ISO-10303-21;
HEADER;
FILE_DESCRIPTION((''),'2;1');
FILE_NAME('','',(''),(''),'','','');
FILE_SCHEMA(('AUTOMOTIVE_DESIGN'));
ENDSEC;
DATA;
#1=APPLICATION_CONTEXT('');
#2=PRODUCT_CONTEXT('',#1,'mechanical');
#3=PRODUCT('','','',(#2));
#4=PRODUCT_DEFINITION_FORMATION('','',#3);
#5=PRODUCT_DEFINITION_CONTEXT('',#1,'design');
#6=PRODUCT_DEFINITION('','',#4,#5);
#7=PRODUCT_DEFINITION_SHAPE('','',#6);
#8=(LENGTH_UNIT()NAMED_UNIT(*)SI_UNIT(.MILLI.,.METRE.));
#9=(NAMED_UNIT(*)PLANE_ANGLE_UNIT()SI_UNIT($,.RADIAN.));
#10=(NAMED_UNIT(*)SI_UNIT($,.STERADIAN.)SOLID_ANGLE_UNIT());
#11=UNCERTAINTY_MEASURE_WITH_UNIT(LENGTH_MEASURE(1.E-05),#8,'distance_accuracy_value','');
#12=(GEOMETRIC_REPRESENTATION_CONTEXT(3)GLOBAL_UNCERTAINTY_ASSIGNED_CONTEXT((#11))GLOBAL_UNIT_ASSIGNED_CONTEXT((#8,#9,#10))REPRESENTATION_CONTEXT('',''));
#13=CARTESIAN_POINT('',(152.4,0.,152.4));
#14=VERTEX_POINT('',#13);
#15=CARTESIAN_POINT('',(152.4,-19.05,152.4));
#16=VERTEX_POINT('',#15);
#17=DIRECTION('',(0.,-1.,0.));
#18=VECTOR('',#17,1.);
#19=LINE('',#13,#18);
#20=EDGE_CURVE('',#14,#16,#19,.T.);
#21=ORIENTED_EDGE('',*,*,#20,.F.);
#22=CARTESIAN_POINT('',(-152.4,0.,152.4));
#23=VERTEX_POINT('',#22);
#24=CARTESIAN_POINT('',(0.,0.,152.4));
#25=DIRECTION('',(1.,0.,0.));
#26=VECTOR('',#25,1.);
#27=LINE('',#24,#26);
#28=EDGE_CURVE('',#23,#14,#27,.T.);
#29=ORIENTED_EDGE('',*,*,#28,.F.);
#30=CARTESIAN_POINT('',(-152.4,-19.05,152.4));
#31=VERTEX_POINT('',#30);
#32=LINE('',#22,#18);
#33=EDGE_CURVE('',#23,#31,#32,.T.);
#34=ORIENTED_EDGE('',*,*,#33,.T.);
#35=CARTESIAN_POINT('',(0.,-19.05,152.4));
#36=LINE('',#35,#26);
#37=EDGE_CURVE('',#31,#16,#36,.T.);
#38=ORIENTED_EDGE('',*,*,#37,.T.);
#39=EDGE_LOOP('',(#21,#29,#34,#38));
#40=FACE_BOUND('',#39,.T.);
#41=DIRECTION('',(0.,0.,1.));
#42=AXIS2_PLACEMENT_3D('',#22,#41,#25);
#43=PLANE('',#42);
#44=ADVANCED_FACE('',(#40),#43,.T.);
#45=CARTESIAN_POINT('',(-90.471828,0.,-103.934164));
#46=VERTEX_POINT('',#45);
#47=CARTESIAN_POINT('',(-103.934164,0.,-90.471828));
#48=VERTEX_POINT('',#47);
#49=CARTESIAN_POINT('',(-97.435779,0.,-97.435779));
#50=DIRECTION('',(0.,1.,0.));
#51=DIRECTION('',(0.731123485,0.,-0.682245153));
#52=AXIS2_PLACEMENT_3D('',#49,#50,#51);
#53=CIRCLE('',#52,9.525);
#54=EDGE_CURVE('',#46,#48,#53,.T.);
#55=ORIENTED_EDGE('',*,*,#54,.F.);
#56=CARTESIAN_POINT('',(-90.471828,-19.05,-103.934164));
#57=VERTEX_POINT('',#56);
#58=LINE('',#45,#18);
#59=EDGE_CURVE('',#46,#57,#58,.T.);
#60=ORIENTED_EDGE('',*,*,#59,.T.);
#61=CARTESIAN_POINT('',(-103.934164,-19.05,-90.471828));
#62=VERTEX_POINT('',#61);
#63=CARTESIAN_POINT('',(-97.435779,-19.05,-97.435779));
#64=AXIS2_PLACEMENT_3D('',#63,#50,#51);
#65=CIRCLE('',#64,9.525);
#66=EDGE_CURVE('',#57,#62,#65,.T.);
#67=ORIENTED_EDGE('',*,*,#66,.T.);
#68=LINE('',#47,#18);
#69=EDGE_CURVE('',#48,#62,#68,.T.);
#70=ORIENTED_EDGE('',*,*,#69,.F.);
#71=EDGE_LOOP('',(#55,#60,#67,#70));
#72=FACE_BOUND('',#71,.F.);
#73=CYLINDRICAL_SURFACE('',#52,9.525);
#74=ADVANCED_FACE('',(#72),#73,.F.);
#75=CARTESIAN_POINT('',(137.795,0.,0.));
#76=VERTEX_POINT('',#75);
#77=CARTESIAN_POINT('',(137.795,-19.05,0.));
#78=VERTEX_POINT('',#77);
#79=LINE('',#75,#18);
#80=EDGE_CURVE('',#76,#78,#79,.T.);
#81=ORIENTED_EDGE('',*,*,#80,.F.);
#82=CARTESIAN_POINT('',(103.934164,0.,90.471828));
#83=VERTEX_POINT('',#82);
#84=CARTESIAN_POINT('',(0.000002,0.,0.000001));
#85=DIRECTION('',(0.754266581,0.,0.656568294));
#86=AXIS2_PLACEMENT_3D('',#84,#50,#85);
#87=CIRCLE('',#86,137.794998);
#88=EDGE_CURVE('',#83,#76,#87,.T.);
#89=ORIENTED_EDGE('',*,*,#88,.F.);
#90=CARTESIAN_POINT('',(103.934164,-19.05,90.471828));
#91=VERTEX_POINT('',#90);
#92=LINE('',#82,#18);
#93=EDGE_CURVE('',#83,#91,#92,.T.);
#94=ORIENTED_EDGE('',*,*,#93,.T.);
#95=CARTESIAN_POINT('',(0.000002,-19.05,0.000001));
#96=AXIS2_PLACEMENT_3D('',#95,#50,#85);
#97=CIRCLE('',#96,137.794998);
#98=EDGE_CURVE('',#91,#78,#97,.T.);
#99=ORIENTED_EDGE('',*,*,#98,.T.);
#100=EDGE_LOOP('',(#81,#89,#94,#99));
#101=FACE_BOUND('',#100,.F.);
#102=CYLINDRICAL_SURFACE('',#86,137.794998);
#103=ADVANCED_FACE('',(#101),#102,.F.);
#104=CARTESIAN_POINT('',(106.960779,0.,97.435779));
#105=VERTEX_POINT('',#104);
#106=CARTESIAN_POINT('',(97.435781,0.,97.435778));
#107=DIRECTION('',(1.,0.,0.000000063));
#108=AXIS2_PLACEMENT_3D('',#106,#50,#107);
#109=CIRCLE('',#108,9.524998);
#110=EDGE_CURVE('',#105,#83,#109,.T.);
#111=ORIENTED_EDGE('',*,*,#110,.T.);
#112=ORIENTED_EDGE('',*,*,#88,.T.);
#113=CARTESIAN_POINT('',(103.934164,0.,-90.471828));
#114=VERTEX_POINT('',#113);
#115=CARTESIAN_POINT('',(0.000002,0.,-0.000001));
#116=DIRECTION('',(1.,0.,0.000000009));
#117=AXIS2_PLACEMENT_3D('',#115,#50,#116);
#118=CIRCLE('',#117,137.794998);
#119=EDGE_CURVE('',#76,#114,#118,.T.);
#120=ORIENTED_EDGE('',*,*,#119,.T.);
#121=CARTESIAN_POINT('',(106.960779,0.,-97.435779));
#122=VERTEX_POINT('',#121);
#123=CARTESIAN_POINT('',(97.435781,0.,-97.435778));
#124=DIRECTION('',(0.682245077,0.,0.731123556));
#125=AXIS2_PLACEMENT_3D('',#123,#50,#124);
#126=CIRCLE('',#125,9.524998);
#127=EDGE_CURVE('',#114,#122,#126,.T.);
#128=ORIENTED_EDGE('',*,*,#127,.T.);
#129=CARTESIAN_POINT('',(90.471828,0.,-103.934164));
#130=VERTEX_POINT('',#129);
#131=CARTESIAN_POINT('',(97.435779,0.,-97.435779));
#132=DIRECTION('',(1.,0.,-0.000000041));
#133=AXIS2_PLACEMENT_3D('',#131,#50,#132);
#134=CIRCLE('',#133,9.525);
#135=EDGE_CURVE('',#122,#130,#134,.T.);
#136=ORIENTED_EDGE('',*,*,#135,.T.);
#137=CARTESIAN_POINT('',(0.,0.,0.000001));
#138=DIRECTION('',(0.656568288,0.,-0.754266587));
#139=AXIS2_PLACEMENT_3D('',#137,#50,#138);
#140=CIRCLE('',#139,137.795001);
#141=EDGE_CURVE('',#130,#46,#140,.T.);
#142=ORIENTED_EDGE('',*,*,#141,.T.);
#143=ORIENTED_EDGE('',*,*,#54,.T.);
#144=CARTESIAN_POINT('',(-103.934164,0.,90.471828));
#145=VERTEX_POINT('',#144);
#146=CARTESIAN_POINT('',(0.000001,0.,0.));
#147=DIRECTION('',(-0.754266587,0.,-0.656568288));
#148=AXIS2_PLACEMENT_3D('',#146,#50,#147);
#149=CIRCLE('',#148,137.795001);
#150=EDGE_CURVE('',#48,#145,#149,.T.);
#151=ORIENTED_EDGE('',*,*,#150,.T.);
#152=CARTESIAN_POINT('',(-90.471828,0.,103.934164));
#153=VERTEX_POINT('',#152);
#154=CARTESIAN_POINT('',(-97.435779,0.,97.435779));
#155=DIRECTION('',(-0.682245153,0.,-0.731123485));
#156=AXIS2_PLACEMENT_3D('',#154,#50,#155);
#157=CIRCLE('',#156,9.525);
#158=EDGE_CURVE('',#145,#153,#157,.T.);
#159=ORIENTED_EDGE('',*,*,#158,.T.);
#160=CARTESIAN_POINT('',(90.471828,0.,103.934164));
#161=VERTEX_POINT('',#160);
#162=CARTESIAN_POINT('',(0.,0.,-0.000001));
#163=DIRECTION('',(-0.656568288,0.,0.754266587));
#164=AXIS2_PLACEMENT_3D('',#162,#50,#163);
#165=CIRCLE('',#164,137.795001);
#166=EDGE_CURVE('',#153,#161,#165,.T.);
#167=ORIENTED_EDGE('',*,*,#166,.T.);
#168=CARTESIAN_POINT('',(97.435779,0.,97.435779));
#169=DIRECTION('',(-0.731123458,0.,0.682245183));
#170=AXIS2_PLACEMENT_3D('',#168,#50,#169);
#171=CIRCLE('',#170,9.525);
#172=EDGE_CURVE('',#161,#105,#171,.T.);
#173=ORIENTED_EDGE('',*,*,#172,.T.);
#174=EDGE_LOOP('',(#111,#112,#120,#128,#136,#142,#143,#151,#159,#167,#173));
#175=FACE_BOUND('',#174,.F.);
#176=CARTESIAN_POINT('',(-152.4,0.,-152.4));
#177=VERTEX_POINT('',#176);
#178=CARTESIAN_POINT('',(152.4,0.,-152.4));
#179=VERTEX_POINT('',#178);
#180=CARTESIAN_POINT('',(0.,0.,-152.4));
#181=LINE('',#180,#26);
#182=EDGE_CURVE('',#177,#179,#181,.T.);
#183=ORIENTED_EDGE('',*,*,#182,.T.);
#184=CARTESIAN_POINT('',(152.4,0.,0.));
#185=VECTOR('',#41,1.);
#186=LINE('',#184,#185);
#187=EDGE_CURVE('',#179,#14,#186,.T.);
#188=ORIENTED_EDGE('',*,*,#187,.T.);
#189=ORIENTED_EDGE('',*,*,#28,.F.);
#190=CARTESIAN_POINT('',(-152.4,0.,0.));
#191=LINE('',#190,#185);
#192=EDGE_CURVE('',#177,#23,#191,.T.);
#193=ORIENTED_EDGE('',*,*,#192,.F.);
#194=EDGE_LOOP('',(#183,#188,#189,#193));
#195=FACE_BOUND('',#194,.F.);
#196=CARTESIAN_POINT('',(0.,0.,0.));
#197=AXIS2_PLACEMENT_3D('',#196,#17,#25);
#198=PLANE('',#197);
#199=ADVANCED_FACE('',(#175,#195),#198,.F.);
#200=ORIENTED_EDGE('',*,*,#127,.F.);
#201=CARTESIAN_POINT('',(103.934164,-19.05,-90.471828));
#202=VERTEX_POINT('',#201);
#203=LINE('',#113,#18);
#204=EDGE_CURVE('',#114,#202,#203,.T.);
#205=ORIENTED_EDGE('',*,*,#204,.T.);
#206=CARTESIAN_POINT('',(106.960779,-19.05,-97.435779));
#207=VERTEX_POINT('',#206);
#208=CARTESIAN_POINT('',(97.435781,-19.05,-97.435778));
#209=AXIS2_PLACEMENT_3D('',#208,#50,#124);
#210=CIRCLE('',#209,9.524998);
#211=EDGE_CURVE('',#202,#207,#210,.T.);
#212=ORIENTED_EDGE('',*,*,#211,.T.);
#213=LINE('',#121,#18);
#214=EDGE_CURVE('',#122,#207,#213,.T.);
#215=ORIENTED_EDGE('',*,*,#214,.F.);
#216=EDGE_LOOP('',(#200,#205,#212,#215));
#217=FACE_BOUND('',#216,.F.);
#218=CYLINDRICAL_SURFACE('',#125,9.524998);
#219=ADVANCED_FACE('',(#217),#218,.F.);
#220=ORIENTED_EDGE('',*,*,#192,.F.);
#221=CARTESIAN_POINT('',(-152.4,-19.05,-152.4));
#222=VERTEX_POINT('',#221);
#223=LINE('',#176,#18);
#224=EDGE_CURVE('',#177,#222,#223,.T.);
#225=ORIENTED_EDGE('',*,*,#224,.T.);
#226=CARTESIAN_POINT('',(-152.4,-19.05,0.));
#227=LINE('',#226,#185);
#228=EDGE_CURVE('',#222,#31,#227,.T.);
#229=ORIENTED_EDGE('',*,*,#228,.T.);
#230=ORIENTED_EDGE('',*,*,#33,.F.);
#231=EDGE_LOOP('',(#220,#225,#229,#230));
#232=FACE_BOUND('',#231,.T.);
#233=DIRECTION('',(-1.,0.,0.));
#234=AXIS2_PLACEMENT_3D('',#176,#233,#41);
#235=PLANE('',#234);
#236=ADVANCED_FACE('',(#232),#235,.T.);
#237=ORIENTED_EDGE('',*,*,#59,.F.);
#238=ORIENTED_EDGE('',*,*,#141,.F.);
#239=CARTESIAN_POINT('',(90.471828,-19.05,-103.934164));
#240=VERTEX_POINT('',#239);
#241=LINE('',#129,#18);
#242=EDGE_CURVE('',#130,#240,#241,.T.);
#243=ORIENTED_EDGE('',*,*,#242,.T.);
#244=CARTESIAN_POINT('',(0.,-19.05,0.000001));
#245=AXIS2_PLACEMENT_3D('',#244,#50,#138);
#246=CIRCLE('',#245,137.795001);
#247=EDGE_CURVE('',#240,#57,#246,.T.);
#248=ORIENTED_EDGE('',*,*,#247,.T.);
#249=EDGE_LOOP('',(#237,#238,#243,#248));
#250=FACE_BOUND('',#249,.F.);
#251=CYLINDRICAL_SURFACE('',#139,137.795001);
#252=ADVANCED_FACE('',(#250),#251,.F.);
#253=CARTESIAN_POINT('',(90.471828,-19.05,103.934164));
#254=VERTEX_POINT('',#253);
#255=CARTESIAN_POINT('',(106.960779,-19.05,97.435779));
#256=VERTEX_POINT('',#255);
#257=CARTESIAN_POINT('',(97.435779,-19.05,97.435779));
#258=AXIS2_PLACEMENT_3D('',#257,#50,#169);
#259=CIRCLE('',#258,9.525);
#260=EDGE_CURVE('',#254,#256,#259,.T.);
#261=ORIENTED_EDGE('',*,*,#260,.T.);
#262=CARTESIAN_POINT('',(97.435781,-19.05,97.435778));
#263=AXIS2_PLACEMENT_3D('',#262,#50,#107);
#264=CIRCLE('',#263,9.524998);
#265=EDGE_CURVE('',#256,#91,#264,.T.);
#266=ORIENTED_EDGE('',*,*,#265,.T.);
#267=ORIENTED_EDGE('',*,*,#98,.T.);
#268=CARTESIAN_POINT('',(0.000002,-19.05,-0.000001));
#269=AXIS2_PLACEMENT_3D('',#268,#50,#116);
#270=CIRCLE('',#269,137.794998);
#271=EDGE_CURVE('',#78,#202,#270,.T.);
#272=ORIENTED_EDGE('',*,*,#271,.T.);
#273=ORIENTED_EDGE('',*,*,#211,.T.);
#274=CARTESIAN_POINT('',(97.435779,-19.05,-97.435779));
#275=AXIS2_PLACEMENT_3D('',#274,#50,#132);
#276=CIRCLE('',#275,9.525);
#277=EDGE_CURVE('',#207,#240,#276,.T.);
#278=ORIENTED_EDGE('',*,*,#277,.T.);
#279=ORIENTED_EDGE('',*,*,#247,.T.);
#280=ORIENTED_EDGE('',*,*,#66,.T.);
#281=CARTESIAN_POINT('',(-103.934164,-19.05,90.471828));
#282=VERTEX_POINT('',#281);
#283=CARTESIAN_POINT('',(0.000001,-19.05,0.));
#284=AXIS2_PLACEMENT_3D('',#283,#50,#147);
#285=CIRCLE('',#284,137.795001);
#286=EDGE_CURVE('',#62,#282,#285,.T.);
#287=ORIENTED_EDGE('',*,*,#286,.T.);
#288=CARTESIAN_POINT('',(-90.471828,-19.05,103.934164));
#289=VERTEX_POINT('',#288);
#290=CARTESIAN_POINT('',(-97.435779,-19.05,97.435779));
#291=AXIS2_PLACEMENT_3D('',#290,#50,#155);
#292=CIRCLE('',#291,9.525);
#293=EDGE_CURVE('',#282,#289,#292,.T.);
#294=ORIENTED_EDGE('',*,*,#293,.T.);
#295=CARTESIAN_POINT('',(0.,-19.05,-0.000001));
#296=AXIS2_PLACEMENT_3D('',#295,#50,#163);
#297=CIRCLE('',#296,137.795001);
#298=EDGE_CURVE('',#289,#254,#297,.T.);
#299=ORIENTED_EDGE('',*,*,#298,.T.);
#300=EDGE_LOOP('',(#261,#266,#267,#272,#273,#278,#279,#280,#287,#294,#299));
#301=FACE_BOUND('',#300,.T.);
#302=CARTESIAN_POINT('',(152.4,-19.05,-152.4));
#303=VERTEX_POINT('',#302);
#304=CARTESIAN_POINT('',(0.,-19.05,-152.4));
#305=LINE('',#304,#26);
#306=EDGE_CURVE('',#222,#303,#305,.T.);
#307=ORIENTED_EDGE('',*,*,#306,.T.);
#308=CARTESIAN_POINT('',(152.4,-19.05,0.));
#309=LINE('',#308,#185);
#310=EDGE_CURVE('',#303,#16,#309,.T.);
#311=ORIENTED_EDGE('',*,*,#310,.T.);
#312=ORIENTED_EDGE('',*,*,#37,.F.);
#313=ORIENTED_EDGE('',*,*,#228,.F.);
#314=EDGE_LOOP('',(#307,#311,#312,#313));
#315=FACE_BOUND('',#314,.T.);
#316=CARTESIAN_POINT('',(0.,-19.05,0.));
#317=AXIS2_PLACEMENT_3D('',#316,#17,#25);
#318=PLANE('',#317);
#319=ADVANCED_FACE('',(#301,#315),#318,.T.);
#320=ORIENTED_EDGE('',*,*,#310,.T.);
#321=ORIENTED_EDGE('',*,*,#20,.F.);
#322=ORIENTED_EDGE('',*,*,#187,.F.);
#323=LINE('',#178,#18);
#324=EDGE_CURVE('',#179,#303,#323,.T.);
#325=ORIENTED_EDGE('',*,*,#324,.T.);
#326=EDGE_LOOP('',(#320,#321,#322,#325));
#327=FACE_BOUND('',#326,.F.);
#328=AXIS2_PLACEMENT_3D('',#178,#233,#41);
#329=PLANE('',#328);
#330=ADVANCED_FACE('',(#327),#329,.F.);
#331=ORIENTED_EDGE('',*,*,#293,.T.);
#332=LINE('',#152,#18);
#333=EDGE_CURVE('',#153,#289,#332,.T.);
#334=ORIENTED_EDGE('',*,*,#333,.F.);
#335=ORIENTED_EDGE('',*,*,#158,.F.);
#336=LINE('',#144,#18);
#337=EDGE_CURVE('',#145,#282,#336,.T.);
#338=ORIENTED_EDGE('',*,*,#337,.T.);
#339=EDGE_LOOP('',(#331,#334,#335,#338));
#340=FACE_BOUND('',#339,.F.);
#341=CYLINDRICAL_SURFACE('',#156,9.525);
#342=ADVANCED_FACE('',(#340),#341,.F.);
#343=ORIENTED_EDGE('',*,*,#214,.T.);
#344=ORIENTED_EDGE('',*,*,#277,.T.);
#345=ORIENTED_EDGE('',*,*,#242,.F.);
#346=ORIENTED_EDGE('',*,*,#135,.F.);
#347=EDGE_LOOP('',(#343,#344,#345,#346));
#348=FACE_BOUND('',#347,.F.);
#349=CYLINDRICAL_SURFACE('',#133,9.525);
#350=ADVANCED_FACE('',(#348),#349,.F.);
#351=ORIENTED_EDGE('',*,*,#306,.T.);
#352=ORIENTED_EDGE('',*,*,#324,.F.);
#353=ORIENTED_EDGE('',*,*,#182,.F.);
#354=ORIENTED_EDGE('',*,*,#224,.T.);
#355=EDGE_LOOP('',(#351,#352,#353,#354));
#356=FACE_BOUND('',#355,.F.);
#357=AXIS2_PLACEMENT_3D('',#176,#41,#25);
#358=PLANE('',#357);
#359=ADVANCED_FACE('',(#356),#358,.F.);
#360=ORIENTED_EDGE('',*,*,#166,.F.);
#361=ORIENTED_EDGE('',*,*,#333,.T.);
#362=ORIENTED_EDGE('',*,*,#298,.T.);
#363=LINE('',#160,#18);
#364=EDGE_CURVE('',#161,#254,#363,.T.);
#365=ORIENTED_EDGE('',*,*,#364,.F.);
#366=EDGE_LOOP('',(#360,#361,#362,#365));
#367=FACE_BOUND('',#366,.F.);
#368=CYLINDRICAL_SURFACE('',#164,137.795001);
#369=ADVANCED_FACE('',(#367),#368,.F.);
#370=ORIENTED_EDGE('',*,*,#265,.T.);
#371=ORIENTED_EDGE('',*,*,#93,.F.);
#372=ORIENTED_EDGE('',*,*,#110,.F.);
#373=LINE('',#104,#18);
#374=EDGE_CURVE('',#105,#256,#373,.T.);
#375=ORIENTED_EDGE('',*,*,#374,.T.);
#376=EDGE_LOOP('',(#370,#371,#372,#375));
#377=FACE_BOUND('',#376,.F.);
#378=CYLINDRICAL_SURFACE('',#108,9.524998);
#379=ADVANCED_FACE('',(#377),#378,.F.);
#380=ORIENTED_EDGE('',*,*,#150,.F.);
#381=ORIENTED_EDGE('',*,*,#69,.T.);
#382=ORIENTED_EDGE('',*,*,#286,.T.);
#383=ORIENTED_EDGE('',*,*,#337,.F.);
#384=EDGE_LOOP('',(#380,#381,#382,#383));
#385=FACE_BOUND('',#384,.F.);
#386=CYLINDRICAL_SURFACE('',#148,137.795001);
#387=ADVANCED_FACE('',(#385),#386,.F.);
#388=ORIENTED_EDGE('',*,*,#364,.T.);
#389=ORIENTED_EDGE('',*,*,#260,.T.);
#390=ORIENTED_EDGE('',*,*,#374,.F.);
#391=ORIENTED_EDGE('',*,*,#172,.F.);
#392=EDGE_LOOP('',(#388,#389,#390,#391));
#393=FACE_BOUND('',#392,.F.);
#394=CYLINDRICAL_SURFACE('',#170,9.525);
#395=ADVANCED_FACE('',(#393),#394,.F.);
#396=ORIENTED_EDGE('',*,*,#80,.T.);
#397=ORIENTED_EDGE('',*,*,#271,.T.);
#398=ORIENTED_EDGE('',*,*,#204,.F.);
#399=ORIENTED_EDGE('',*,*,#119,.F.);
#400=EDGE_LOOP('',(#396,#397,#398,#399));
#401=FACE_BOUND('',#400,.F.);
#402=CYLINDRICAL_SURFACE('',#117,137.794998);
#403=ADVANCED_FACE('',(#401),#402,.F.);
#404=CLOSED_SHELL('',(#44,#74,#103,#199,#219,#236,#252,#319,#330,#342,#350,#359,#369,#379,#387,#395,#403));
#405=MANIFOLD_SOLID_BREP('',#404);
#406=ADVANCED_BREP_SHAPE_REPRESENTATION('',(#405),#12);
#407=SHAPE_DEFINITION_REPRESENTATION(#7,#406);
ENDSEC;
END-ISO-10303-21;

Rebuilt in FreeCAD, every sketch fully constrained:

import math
import FreeCAD as App
import Part
import Sketcher

V = App.Vector
Q = App.Units.Quantity


def add_polygon(sketch, points):
    """Adds a closed chain of lines whose ends are joined by coincident constraints."""
    first, n = sketch.GeometryCount, len(points)
    for a, b in zip(points, points[1:] + points[:1]):
        sketch.addGeometry(Part.LineSegment(App.Vector(*a, 0), App.Vector(*b, 0)), False)
    for i in range(n):
        sketch.addConstraint(Sketcher.Constraint("Coincident", first + i, 2, first + (i + 1) % n, 1))

doc = App.newDocument("Part")
body = doc.addObject("PartDesign::Body", "Body")

# Sketch on XZ plane
sketch1 = body.newObject("Sketcher::SketchObject", "Sketch")
sketch1.AttachmentSupport = (doc.getObject("XZ_Plane"), [""])
sketch1.MapMode = "FlatFace"
add_polygon(sketch1, [(-152, 152), (-152, -152), (152, -152), (152, 152)])  # lines 0-3
sketch1.addGeometry(Part.ArcOfCircle(Part.Circle(V(97, 97, 0), V(0, 0, 1), 10), math.radians(-47), math.radians(0)), False)  # 4
sketch1.addGeometry(Part.ArcOfCircle(Part.Circle(V(0, 0, 0), V(0, 0, 1), 138), math.radians(0), math.radians(41)), False)  # 5
sketch1.addGeometry(Part.ArcOfCircle(Part.Circle(V(0, 0, 0), V(0, 0, 1), 138), math.radians(-41), math.radians(0)), False)  # 6
sketch1.addGeometry(Part.ArcOfCircle(Part.Circle(V(97, -97, 0), V(0, 0, 1), 10), math.radians(0), math.radians(47)), False)  # 7
sketch1.addGeometry(Part.ArcOfCircle(Part.Circle(V(97, -97, 0), V(0, 0, 1), 10), math.radians(-137), math.radians(0)), False)  # 8
sketch1.addGeometry(Part.ArcOfCircle(Part.Circle(V(0, 0, 0), V(0, 0, 1), 138), math.radians(-131), math.radians(-49)), False)  # 9
sketch1.addGeometry(Part.ArcOfCircle(Part.Circle(V(-97, -97, 0), V(0, 0, 1), 10), math.radians(133), math.radians(317)), False)  # 10
sketch1.addGeometry(Part.ArcOfCircle(Part.Circle(V(0, 0, 0), V(0, 0, 1), 138), math.radians(139), math.radians(221)), False)  # 11
sketch1.addGeometry(Part.ArcOfCircle(Part.Circle(V(-97, 97, 0), V(0, 0, 1), 10), math.radians(43), math.radians(227)), False)  # 12
sketch1.addGeometry(Part.ArcOfCircle(Part.Circle(V(0, 0, 0), V(0, 0, 1), 138), math.radians(49), math.radians(131)), False)  # 13
sketch1.addGeometry(Part.ArcOfCircle(Part.Circle(V(97, 97, 0), V(0, 0, 1), 10), math.radians(0), math.radians(137)), False)  # 14
sketch1.addConstraint([
    Sketcher.Constraint("Coincident", 4, 1, 5, 2),
    Sketcher.Constraint("Tangent", 5, 1, 6, 2),
    Sketcher.Constraint("Coincident", 6, 1, 7, 2),
    Sketcher.Constraint("Tangent", 7, 1, 8, 2),
    Sketcher.Constraint("Coincident", 8, 1, 9, 2),
    Sketcher.Constraint("Coincident", 9, 1, 10, 2),
    Sketcher.Constraint("Coincident", 10, 1, 11, 2),
    Sketcher.Constraint("Coincident", 11, 1, 12, 2),
    Sketcher.Constraint("Coincident", 12, 1, 13, 2),
    Sketcher.Constraint("Coincident", 13, 1, 14, 2),
    Sketcher.Constraint("Tangent", 14, 1, 4, 2),
    Sketcher.Constraint("Vertical", 0),
    Sketcher.Constraint("Horizontal", 1),
    Sketcher.Constraint("Vertical", 2),
    Sketcher.Constraint("Horizontal", 3),
    Sketcher.Constraint("Coincident", 5, 3, -1, 1),
    Sketcher.Constraint("Coincident", 9, 3, -1, 1),
    Sketcher.Constraint("Coincident", 11, 3, -1, 1),
    Sketcher.Constraint("Coincident", 13, 3, -1, 1),
    Sketcher.Constraint("Equal", 5, 6),
    Sketcher.Constraint("Equal", 4, 7),
    Sketcher.Constraint("Equal", 8, 10),
    Sketcher.Constraint("Equal", 9, 11),
    Sketcher.Constraint("Equal", 10, 12),
    Sketcher.Constraint("Equal", 11, 13),
    Sketcher.Constraint("Equal", 12, 14),
    Sketcher.Constraint("Symmetric", 4, 3, 10, 3, -1, 1),
    Sketcher.Constraint("Symmetric", 7, 3, 12, 3, -1, 1),
    Sketcher.Constraint("Symmetric", 0, 2, 2, 2, -1, 1),
    Sketcher.Constraint("Symmetric", 4, 1, 10, 1, -1, 1),
    Sketcher.Constraint("Symmetric", 7, 3, 10, 3, -2),
    Sketcher.Constraint("PointOnObject", 5, 1, -1),
    Sketcher.Constraint("Horizontal", 10, 3, 7, 1),
    Sketcher.Constraint("Horizontal", 12, 3, 14, 1),
    Sketcher.Constraint("Equal", 3, 0),
    Sketcher.Constraint("DistanceX", 1, 1, 1, 2, Q("12 in")),
    Sketcher.Constraint("Radius", 4, Q("0.3749999 in")),
    Sketcher.Constraint("Radius", 5, Q("5.4249999 in")),
    Sketcher.Constraint("DistanceX", -1, 1, 4, 3, Q("97.435781 mm")),
    Sketcher.Constraint("DistanceY", -1, 1, 4, 3, Q("97.435778 mm")),
])
pad1 = body.newObject("PartDesign::Pad", "Pad")
pad1.Profile = sketch1
pad1.Length = Q("0.75 in")

doc.recompute()
